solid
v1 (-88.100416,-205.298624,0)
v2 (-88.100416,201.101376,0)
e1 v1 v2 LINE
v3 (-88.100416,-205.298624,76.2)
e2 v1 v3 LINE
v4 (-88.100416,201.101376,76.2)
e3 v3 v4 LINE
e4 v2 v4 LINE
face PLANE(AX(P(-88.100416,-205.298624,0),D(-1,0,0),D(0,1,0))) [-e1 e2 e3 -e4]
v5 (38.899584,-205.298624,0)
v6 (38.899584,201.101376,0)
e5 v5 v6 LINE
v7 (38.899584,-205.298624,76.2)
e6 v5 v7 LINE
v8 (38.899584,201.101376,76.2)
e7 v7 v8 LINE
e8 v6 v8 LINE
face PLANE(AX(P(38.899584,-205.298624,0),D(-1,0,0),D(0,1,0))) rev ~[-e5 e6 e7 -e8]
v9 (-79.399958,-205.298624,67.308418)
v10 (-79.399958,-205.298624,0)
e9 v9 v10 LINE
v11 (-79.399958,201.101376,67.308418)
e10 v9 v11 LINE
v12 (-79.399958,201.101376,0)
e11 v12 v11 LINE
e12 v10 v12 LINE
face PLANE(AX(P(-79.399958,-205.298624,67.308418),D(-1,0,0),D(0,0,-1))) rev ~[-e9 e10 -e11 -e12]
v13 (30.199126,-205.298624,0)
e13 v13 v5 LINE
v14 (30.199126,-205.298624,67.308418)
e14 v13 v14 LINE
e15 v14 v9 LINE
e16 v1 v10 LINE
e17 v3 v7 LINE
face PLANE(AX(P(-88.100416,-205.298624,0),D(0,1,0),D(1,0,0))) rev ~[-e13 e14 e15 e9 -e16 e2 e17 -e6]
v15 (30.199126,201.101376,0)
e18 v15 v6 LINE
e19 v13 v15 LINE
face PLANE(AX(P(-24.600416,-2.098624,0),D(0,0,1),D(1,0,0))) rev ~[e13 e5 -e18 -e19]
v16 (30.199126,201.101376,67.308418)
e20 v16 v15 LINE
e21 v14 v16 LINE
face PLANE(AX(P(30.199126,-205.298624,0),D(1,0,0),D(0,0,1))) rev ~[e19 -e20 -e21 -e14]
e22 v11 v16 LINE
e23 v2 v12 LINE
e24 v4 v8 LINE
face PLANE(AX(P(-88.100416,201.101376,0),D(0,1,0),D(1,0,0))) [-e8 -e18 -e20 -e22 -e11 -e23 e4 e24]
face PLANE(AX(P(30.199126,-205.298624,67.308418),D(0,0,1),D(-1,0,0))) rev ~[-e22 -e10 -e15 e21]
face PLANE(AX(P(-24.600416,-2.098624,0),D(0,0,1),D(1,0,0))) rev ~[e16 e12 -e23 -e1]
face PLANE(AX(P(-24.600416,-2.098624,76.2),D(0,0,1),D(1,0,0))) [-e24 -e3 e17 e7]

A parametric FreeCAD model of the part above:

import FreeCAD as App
import Part
import Sketcher
from FreeCAD import Vector
Q = App.Units.Quantity

doc = App.newDocument("Part")
body = doc.addObject("PartDesign::Body", "Body")

sketch1 = body.newObject("Sketcher::SketchObject", "Sketch")
sketch1.AttachmentSupport = (doc.getObject("XY_Plane"), [""])
sketch1.MapMode = "FlatFace"
sketch1.addGeometry([
    Part.LineSegment(Vector(-88, 201, 0), Vector(-88, -205, 0)),
    Part.LineSegment(Vector(-88, -205, 0), Vector(39, -205, 0)),
    Part.LineSegment(Vector(39, -205, 0), Vector(39, 201, 0)),
    Part.LineSegment(Vector(39, 201, 0), Vector(-88, 201, 0)),
], False)
sketch1.addConstraint([
    Sketcher.Constraint("Coincident", 0, 2, 1, 1),
    Sketcher.Constraint("Coincident", 1, 2, 2, 1),
    Sketcher.Constraint("Coincident", 2, 2, 3, 1),
    Sketcher.Constraint("Coincident", 3, 2, 0, 1),
    Sketcher.Constraint("Vertical", 0),
    Sketcher.Constraint("Horizontal", 1),
    Sketcher.Constraint("Vertical", 2),
    Sketcher.Constraint("Horizontal", 3),
    Sketcher.Constraint("DistanceX", 1, 1, 1, 2, Q("5 in")),
    Sketcher.Constraint("DistanceY", 0, 2, 0, 1, Q("16 in")),
    Sketcher.Constraint("DistanceX", 0, 2, -1, 1, Q("88.100416 mm")),
    Sketcher.Constraint("DistanceY", 0, 2, -1, 1, Q("205.298624 mm")),
])
pad1 = body.newObject("PartDesign::Pad", "Pad")
pad1.Profile = sketch1
pad1.Length = Q("3 in")

sketch2 = body.newObject("Sketcher::SketchObject", "Sketch001")
sketch2.AttachmentSupport = (doc.getObject("XZ_Plane"), [""])
sketch2.MapMode = "FlatFace"
sketch2.AttachmentOffset = App.Placement(Vector(0, 0, 205.298624), App.Rotation())
sketch2.addGeometry([
    Part.LineSegment(Vector(-79, 67, 0), Vector(-79, 0, 0)),
    Part.LineSegment(Vector(-79, 0, 0), Vector(30, 0, 0)),
    Part.LineSegment(Vector(30, 0, 0), Vector(30, 67, 0)),
    Part.LineSegment(Vector(30, 67, 0), Vector(-79, 67, 0)),
], False)
sketch2.addConstraint([
    Sketcher.Constraint("Coincident", 0, 2, 1, 1),
    Sketcher.Constraint("Coincident", 1, 2, 2, 1),
    Sketcher.Constraint("Coincident", 2, 2, 3, 1),
    Sketcher.Constraint("Coincident", 3, 2, 0, 1),
    Sketcher.Constraint("Vertical", 0),
    Sketcher.Constraint("Horizontal", 1),
    Sketcher.Constraint("Vertical", 2),
    Sketcher.Constraint("Horizontal", 3),
    Sketcher.Constraint("PointOnObject", 0, 2, -1),
    Sketcher.Constraint("DistanceY", 0, 2, 0, 1, Q("67.308418 mm")),
    Sketcher.Constraint("DistanceX", 1, 1, 1, 2, Q("109.599084 mm")),
    Sketcher.Constraint("DistanceX", 0, 2, -1, 1, Q("79.399958 mm")),
])
pocket1 = body.newObject("PartDesign::Pocket", "Pocket")
pocket1.Profile = sketch2
pocket1.Length = Q("18.56 in")

doc.recompute()
